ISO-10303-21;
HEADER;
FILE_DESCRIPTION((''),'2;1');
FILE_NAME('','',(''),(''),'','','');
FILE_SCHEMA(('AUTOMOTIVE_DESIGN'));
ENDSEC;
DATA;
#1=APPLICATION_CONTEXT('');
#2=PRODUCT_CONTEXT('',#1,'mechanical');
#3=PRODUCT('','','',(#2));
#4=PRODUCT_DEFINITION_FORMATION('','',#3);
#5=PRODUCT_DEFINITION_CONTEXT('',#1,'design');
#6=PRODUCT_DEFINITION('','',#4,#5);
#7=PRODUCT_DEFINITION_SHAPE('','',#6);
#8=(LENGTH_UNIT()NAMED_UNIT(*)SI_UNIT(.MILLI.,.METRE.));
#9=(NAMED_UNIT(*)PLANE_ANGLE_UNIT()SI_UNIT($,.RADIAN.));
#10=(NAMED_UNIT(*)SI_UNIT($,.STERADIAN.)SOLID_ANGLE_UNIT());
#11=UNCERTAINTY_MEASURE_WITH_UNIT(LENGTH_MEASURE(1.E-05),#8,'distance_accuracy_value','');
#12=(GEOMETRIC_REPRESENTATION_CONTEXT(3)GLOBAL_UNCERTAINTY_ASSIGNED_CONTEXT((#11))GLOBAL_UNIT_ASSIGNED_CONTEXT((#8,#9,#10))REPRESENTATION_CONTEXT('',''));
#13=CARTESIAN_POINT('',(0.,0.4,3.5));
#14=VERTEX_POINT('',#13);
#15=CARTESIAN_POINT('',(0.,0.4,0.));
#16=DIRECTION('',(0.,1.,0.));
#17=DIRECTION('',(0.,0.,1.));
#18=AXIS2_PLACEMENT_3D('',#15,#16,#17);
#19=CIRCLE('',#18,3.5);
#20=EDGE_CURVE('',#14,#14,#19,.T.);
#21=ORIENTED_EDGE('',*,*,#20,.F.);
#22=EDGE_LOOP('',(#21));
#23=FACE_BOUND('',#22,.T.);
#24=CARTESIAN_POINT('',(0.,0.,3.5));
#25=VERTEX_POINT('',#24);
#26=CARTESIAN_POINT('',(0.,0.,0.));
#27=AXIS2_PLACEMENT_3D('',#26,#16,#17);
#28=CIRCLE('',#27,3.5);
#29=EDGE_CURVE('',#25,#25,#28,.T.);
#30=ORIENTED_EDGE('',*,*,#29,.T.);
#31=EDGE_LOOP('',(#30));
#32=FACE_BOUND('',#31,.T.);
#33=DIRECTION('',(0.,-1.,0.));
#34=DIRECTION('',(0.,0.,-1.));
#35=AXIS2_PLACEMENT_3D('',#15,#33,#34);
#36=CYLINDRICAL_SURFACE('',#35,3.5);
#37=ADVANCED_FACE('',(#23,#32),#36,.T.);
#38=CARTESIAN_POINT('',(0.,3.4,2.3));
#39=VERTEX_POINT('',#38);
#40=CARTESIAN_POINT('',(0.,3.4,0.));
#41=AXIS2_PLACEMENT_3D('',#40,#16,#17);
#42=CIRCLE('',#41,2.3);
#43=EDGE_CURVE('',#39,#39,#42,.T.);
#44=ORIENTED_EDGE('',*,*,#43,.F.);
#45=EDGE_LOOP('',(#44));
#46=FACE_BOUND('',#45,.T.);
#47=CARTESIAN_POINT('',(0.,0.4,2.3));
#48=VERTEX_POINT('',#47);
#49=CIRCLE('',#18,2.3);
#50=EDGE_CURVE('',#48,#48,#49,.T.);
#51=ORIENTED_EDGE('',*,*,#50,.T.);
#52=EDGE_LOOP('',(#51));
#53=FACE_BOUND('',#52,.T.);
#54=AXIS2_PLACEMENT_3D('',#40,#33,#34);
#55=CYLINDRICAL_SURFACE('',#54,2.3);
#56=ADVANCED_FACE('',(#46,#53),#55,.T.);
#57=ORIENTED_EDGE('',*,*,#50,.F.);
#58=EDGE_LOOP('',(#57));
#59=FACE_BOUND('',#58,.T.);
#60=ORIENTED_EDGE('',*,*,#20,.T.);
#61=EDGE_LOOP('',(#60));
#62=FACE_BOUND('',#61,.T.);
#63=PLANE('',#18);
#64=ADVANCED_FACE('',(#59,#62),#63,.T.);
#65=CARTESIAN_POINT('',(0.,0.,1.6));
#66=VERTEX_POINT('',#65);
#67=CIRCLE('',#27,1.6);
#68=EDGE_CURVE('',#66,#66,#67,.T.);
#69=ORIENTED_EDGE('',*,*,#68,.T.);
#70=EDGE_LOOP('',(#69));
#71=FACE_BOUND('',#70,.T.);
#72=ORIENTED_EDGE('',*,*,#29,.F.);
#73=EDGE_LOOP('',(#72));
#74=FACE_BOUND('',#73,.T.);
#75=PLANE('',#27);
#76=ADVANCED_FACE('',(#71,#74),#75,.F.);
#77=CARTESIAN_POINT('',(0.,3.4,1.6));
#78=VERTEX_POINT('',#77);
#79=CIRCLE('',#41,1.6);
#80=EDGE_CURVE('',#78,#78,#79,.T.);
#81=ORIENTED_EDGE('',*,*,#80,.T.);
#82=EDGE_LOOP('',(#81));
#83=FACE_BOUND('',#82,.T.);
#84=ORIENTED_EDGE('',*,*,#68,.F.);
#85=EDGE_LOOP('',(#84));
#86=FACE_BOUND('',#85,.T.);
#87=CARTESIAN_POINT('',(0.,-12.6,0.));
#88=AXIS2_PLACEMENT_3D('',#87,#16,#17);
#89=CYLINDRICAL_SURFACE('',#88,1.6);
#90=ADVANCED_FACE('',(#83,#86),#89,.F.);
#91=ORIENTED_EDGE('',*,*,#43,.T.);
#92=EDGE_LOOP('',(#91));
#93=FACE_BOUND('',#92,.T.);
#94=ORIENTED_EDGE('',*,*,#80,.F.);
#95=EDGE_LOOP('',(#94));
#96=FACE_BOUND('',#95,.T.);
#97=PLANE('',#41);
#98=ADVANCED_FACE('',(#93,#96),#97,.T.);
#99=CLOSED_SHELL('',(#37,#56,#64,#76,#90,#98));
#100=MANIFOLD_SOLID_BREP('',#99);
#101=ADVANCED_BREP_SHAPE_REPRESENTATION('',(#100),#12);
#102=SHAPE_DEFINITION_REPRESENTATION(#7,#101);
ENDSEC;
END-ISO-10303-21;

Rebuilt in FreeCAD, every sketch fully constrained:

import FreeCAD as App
import Part
import Sketcher
Q = App.Units.Quantity

doc = App.newDocument("Part")
params = doc.addObject("Spreadsheet::Sheet", "Params")
for row, (alias, value) in enumerate([
    ("sketch1_diameter", "7 mm"),
    ("pad1_length", "0.4 mm"),
    ("sketch2_diameter", "4.6 mm"),
    ("pad2_length", "3 mm"),
    ("sketch3_diameter", "3.2 mm"),
    ("pocket1_length", "16 mm"),
], start=1):
    params.set(f"A{row}", alias)
    params.set(f"B{row}", "=" + value)
    params.setAlias(f"B{row}", alias)

body = doc.addObject("PartDesign::Body", "Body")

sketch1 = body.newObject("Sketcher::SketchObject", "Sketch")
sketch1.AttachmentSupport = (doc.getObject("XZ_Plane"), [""])
sketch1.MapMode = "FlatFace"
sketch1.addGeometry(Part.Circle(App.Vector(0, 0, 0), App.Vector(0, 0, 1), 3.5), False)
sketch1.addConstraint(Sketcher.Constraint("Coincident", 0, 3, -1, 1))
sketch1.addConstraint(Sketcher.Constraint("Diameter", 0, Q("7 mm")))
sketch1.setExpression("Constraints[1]", "Params.sketch1_diameter")
pad1 = body.newObject("PartDesign::Pad", "Pad")
pad1.Profile = sketch1
pad1.setExpression("Length", "Params.pad1_length")
pad1.Reversed = True

sketch2 = body.newObject("Sketcher::SketchObject", "Sketch001")
sketch2.AttachmentSupport = (doc.getObject("XZ_Plane"), [""])
sketch2.MapMode = "FlatFace"
sketch2.AttachmentOffset = App.Placement(App.Vector(0, 0, -0.4), App.Rotation())
sketch2.addGeometry(Part.Circle(App.Vector(0, 0, 0), App.Vector(0, 0, 1), 2.3), False)
sketch2.addConstraint(Sketcher.Constraint("Coincident", 0, 3, -1, 1))
sketch2.addConstraint(Sketcher.Constraint("Diameter", 0, Q("4.6 mm")))
sketch2.setExpression("Constraints[1]", "Params.sketch2_diameter")
pad2 = body.newObject("PartDesign::Pad", "Pad001")
pad2.Profile = sketch2
pad2.setExpression("Length", "Params.pad2_length")
pad2.Reversed = True

sketch3 = body.newObject("Sketcher::SketchObject", "Sketch002")
sketch3.AttachmentSupport = (doc.getObject("XZ_Plane"), [""])
sketch3.MapMode = "FlatFace"
sketch3.AttachmentOffset = App.Placement(App.Vector(0, 0, -3.4), App.Rotation())
sketch3.addGeometry(Part.Circle(App.Vector(0, 0, 0), App.Vector(0, 0, 1), 1.6), False)
sketch3.addConstraint(Sketcher.Constraint("Coincident", 0, 3, -1, 1))
sketch3.addConstraint(Sketcher.Constraint("Diameter", 0, Q("3.2 mm")))
sketch3.setExpression("Constraints[1]", "Params.sketch3_diameter")
pocket1 = body.newObject("PartDesign::Pocket", "Pocket")
pocket1.Profile = sketch3
pocket1.setExpression("Length", "Params.pocket1_length")
pocket1.Reversed = True

doc.recompute()
